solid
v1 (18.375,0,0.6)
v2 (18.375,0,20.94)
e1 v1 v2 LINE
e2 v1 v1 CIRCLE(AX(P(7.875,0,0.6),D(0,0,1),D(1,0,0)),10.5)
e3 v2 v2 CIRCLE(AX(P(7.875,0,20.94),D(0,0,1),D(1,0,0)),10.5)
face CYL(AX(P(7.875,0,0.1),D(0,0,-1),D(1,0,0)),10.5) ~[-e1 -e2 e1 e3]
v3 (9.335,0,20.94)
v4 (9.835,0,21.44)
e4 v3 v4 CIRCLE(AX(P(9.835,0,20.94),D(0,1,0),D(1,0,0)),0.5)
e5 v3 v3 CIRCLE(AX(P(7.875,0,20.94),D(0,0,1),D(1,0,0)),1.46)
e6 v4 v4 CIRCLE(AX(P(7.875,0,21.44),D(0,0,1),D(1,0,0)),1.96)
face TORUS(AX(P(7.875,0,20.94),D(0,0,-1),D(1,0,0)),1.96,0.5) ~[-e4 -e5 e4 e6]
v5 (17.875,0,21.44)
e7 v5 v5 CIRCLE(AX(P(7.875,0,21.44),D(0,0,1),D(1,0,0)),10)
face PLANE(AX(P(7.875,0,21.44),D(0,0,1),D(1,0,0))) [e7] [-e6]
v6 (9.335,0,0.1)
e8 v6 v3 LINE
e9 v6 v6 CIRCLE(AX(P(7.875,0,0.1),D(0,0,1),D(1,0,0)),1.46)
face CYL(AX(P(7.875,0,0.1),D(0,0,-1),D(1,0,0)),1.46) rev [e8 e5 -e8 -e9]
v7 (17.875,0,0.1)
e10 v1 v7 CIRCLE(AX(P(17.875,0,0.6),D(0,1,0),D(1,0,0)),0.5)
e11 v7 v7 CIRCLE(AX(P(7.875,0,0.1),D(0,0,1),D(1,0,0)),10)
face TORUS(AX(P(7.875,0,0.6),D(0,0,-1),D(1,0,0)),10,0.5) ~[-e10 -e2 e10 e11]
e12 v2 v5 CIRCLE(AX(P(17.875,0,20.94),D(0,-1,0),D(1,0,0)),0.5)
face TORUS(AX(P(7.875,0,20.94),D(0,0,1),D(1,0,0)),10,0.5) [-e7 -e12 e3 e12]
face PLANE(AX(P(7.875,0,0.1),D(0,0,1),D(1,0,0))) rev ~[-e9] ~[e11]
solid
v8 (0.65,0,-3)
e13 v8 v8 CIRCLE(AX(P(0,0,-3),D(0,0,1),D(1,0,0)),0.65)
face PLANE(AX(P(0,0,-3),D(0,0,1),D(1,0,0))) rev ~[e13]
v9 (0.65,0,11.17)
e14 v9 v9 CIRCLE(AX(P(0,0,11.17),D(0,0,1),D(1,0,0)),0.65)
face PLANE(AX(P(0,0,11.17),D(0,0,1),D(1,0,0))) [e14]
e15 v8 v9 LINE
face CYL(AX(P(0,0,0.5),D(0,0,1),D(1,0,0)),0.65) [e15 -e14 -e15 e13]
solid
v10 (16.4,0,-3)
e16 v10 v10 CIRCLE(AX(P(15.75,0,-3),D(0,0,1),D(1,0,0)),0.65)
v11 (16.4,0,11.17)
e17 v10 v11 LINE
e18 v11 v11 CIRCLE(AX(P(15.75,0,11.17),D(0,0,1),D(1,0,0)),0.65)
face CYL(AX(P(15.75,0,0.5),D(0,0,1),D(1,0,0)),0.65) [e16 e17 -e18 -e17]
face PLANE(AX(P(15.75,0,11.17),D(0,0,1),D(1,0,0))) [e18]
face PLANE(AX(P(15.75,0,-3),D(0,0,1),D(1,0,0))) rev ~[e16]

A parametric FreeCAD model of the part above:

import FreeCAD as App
import Part
import Sketcher

V = App.Vector
Q = App.Units.Quantity


def edges_at(feature, points):
    """Names of the edges that pass closest to the given points."""
    edges = feature.Shape.Edges
    near = lambda p: min(range(len(edges)), key=lambda i: edges[i].distToShape(Part.Vertex(*p))[0])
    return sorted({f"Edge{near(p) + 1}" for p in points})

doc = App.newDocument("Part")
params = doc.addObject("Spreadsheet::Sheet", "Params")
for row, (alias, value) in enumerate([
    ("sketch1_diameter", "1.3 mm"),
    ("pad1_length", "10.67 mm"),
    ("pad1_length2", "3.5 mm"),
    ("sketch2_diameter", "21 mm"),
    ("sketch2_diameter2", "2.92 mm"),
    ("pad2_length", "21.34 mm"),
    ("fillet_radius", "0.5 mm"),
], start=1):
    params.set(f"A{row}", alias)
    params.set(f"B{row}", "=" + value)
    params.setAlias(f"B{row}", alias)

body = doc.addObject("PartDesign::Body", "Body")
body.AllowCompound = True

# Sketch on XY plane
sketch1 = doc.addObject("Sketcher::SketchObject", "Sketch")
body.addObject(sketch1)
sketch1.AttachmentSupport = (doc.XY_Plane, [""])
sketch1.MapMode = "FlatFace"
sketch1.AttachmentOffset = App.Placement(V(0, 0, 0.5), App.Rotation())
sketch1.addGeometry([
    Part.Circle(V(0, 0, 0), V(0, 0, 1), 0.7),
    Part.Circle(V(15.8, 0, 0), V(0, 0, 1), 0.7),
], False)
sketch1.addConstraint([
    Sketcher.Constraint("Coincident", 0, 3, -1, 1),
    Sketcher.Constraint("Equal", 0, 1),
    Sketcher.Constraint("PointOnObject", 1, 3, -1),
    Sketcher.Constraint("Diameter", 0, Q("1.3 mm")),
    Sketcher.Constraint("DistanceX", -1, 1, 1, 3, Q("15.75 mm")),
])
sketch1.setExpression("Constraints[3]", "Params.sketch1_diameter")
pad1 = doc.addObject("PartDesign::Pad", "Pad")
body.addObject(pad1)
pad1.Profile = sketch1
pad1.Type = "TwoLengths"
pad1.setExpression("Length", "Params.pad1_length")
pad1.setExpression("Length2", "Params.pad1_length2")
body2 = doc.addObject("PartDesign::Body", "Body001")

# Sketch on XY plane
sketch2 = doc.addObject("Sketcher::SketchObject", "Sketch001")
body2.addObject(sketch2)
sketch2.AttachmentSupport = (doc.getObject("XY_Plane001"), [""])
sketch2.MapMode = "FlatFace"
sketch2.AttachmentOffset = App.Placement(V(0, 0, 0.1), App.Rotation())
sketch2.addGeometry([
    Part.Circle(V(7.9, 0, 0), V(0, 0, 1), 10.5),
    Part.Circle(V(7.9, 0, 0), V(0, 0, 1), 1.5),
], False)
sketch2.addConstraint([
    Sketcher.Constraint("Coincident", 1, 3, 0, 3),
    Sketcher.Constraint("PointOnObject", 0, 3, -1),
    Sketcher.Constraint("Diameter", 0, Q("21 mm")),
    Sketcher.Constraint("Diameter", 1, Q("2.92 mm")),
    Sketcher.Constraint("DistanceX", -1, 1, 0, 3, Q("7.875 mm")),
])
sketch2.setExpression("Constraints[2]", "Params.sketch2_diameter")
sketch2.setExpression("Constraints[3]", "Params.sketch2_diameter2")
pad2 = doc.addObject("PartDesign::Pad", "Pad001")
body2.addObject(pad2)
pad2.Profile = sketch2
pad2.setExpression("Length", "Params.pad2_length")
doc.recompute()

fillet = doc.addObject("PartDesign::Fillet", "Fillet")
body2.addObject(fillet)
fillet.Base = (pad2, edges_at(pad2, [(6.415, 0, 21.44), (-2.625, 0, 21.44), (-2.625, 0, 0.1)]))
fillet.setExpression("Radius", "Params.fillet_radius")

doc.recompute()
